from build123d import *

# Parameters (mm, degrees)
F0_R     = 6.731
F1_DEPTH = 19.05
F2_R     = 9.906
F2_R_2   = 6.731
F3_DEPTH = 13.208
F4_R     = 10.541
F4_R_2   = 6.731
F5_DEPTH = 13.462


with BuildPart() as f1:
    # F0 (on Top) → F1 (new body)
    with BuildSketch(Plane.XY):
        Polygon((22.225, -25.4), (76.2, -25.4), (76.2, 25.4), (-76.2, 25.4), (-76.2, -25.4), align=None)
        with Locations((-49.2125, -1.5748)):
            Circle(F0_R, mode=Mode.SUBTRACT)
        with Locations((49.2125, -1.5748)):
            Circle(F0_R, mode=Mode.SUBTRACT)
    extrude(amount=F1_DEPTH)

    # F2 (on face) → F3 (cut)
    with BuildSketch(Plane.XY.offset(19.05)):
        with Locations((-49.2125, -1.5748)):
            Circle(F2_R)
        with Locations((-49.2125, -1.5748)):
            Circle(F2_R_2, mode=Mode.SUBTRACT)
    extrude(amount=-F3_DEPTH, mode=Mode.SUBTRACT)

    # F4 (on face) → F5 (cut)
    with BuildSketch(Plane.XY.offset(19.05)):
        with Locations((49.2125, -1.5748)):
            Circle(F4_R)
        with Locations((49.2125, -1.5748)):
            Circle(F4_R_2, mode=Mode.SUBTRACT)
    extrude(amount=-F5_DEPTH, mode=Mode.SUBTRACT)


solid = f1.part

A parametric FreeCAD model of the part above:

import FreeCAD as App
import Part
import Sketcher

V = App.Vector
Q = App.Units.Quantity


def add_polygon(sketch, points):
    """Adds a closed chain of lines whose ends are joined by coincident constraints."""
    first, n = sketch.GeometryCount, len(points)
    for a, b in zip(points, points[1:] + points[:1]):
        sketch.addGeometry(Part.LineSegment(App.Vector(*a, 0), App.Vector(*b, 0)), False)
    for i in range(n):
        sketch.addConstraint(Sketcher.Constraint("Coincident", first + i, 2, first + (i + 1) % n, 1))

doc = App.newDocument("Part")
params = doc.addObject("Spreadsheet::Sheet", "Params")
for row, (alias, value) in enumerate([
    ("sketch1_diameter", "0.53 in"),
    ("sketch1_width", "6 in"),
    ("sketch1_height", "2 in"),
    ("pad1_length", "0.75 in"),
    ("sketch2_diameter", "0.78 in"),
    ("sketch2_diameter2", "0.53 in"),
    ("pocket1_length", "0.52 in"),
    ("sketch3_diameter", "0.83 in"),
    ("sketch3_diameter2", "0.53 in"),
    ("pocket2_length", "0.53 in"),
], start=1):
    params.set(f"A{row}", alias)
    params.set(f"B{row}", "=" + value)
    params.setAlias(f"B{row}", alias)

body = doc.addObject("PartDesign::Body", "Body")

# Sketch on XY plane
sketch1 = body.newObject("Sketcher::SketchObject", "Sketch")
sketch1.AttachmentSupport = (doc.getObject("XY_Plane"), [""])
sketch1.MapMode = "FlatFace"
add_polygon(sketch1, [(76, -25), (76, 25), (-76, 25), (-76, -25)])  # lines 0-3
sketch1.addGeometry(Part.Circle(V(-49, -2, 0), V(0, 0, 1), 7), False)  # 4
sketch1.addGeometry(Part.Circle(V(49, -2, 0), V(0, 0, 1), 7), False)  # 5
sketch1.addConstraint([
    Sketcher.Constraint("Vertical", 0),
    Sketcher.Constraint("Horizontal", 1),
    Sketcher.Constraint("Vertical", 2),
    Sketcher.Constraint("Horizontal", 3),
    Sketcher.Constraint("Equal", 4, 5),
    Sketcher.Constraint("Symmetric", 0, 2, 2, 2, -1, 1),
    Sketcher.Constraint("Symmetric", 4, 3, 5, 3, -2),
    Sketcher.Constraint("Diameter", 4, Q("0.53 in")),
    Sketcher.Constraint("DistanceX", 1, 2, 1, 1, Q("6 in")),
    Sketcher.Constraint("DistanceY", 0, 1, 0, 2, Q("2 in")),
    Sketcher.Constraint("DistanceX", 4, 3, -1, 1, Q("1.9375 in")),
    Sketcher.Constraint("DistanceY", 4, 3, -1, 1, Q("0.062 in")),
])
sketch1.setExpression("Constraints[11]", "Params.sketch1_diameter")
sketch1.setExpression("Constraints[12]", "Params.sketch1_width")
sketch1.setExpression("Constraints[13]", "Params.sketch1_height")
pad1 = body.newObject("PartDesign::Pad", "Pad")
pad1.Profile = sketch1
pad1.setExpression("Length", "Params.pad1_length")

# Sketch on XY plane
sketch2 = body.newObject("Sketcher::SketchObject", "Sketch001")
sketch2.AttachmentSupport = (doc.getObject("XY_Plane"), [""])
sketch2.MapMode = "FlatFace"
sketch2.AttachmentOffset = App.Placement(V(0, 0, 0.75 * 25.4), App.Rotation())
sketch2.addGeometry([
    Part.Circle(V(-49, -2, 0), V(0, 0, 1), 10),
    Part.Circle(V(-49, -2, 0), V(0, 0, 1), 7),
], False)
sketch2.addConstraint([
    Sketcher.Constraint("Coincident", 1, 3, 0, 3),
    Sketcher.Constraint("Diameter", 0, Q("0.78 in")),
    Sketcher.Constraint("Diameter", 1, Q("0.53 in")),
    Sketcher.Constraint("DistanceX", 0, 3, -1, 1, Q("1.9375 in")),
    Sketcher.Constraint("DistanceY", 0, 3, -1, 1, Q("0.062 in")),
])
sketch2.setExpression("Constraints[1]", "Params.sketch2_diameter")
sketch2.setExpression("Constraints[2]", "Params.sketch2_diameter2")
pocket1 = body.newObject("PartDesign::Pocket", "Pocket")
pocket1.Profile = sketch2
pocket1.setExpression("Length", "Params.pocket1_length")

# Sketch on XY plane
sketch3 = body.newObject("Sketcher::SketchObject", "Sketch002")
sketch3.AttachmentSupport = (doc.getObject("XY_Plane"), [""])
sketch3.MapMode = "FlatFace"
sketch3.AttachmentOffset = App.Placement(V(0, 0, 0.75 * 25.4), App.Rotation())
sketch3.addGeometry([
    Part.Circle(V(49, -2, 0), V(0, 0, 1), 11),
    Part.Circle(V(49, -2, 0), V(0, 0, 1), 7),
], False)
sketch3.addConstraint([
    Sketcher.Constraint("Coincident", 1, 3, 0, 3),
    Sketcher.Constraint("Diameter", 0, Q("0.83 in")),
    Sketcher.Constraint("Diameter", 1, Q("0.53 in")),
    Sketcher.Constraint("DistanceX", -1, 1, 0, 3, Q("1.9375 in")),
    Sketcher.Constraint("DistanceY", 0, 3, -1, 1, Q("0.062 in")),
])
sketch3.setExpression("Constraints[1]", "Params.sketch3_diameter")
sketch3.setExpression("Constraints[2]", "Params.sketch3_diameter2")
pocket2 = body.newObject("PartDesign::Pocket", "Pocket001")
pocket2.Profile = sketch3
pocket2.setExpression("Length", "Params.pocket2_length")

doc.recompute()
